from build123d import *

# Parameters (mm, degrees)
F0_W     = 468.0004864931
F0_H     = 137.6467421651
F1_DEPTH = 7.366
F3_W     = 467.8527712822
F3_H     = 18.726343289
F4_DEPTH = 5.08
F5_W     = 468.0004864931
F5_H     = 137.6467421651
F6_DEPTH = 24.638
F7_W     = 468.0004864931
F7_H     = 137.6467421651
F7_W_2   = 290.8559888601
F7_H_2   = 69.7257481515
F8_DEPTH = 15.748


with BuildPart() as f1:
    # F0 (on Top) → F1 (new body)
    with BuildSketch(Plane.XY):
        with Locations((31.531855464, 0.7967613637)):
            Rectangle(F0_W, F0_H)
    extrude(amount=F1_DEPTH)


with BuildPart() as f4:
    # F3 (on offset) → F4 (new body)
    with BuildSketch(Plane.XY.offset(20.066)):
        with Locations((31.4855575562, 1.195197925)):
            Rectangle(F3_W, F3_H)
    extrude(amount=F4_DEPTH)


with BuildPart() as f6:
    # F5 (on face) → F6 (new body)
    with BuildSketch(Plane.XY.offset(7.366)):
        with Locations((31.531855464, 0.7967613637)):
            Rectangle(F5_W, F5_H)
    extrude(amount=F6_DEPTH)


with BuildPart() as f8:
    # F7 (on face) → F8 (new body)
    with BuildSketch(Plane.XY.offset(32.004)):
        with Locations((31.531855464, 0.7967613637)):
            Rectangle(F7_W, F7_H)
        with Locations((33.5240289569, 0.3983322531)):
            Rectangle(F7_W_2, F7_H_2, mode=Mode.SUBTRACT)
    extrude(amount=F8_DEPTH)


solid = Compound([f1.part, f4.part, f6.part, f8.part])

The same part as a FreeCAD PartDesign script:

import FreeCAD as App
import Part
import Sketcher
from FreeCAD import Vector
Q = App.Units.Quantity

doc = App.newDocument("Part")
body = doc.addObject("PartDesign::Body", "Body")

sketch1 = doc.addObject("Sketcher::SketchObject", "Sketch")
body.addObject(sketch1)
sketch1.AttachmentSupport = (doc.XY_Plane, [""])
sketch1.MapMode = "FlatFace"
sketch1.addGeometry([
    Part.LineSegment(Vector(-202, 70, 0), Vector(-202, -68, 0)),
    Part.LineSegment(Vector(-202, -68, 0), Vector(266, -68, 0)),
    Part.LineSegment(Vector(266, -68, 0), Vector(266, 70, 0)),
    Part.LineSegment(Vector(266, 70, 0), Vector(-202, 70, 0)),
], False)
sketch1.addConstraint([
    Sketcher.Constraint("Coincident", 0, 2, 1, 1),
    Sketcher.Constraint("Coincident", 1, 2, 2, 1),
    Sketcher.Constraint("Coincident", 2, 2, 3, 1),
    Sketcher.Constraint("Coincident", 3, 2, 0, 1),
    Sketcher.Constraint("Vertical", 0),
    Sketcher.Constraint("Horizontal", 1),
    Sketcher.Constraint("Vertical", 2),
    Sketcher.Constraint("Horizontal", 3),
    Sketcher.Constraint("DistanceX", -1, 1, 1, 2, Q("265.532099 mm")),
    Sketcher.Constraint("DistanceX", 1, 1, 1, 2, Q("468.000486 mm")),
    Sketcher.Constraint("DistanceY", 0, 2, 0, 1, Q("137.646742 mm")),
    Sketcher.Constraint("DistanceY", 0, 2, -1, 1, Q("68.02661 mm")),
])
pad1 = doc.addObject("PartDesign::Pad", "Pad")
body.addObject(pad1)
pad1.Profile = sketch1
pad1.Length = Q("0.29 in")
body2 = doc.addObject("PartDesign::Body", "Body001")

sketch2 = doc.addObject("Sketcher::SketchObject", "Sketch001")
body2.addObject(sketch2)
sketch2.AttachmentSupport = (doc.getObject("XY_Plane001"), [""])
sketch2.MapMode = "FlatFace"
sketch2.AttachmentOffset = App.Placement(Vector(0, 0, 0.79 * 25.4), App.Rotation())
sketch2.addGeometry([
    Part.LineSegment(Vector(-202, 11, 0), Vector(-202, -8, 0)),
    Part.LineSegment(Vector(-202, -8, 0), Vector(265, -8, 0)),
    Part.LineSegment(Vector(265, -8, 0), Vector(265, 11, 0)),
    Part.LineSegment(Vector(265, 11, 0), Vector(-202, 11, 0)),
], False)
sketch2.addConstraint([
    Sketcher.Constraint("Coincident", 0, 2, 1, 1),
    Sketcher.Constraint("Coincident", 1, 2, 2, 1),
    Sketcher.Constraint("Coincident", 2, 2, 3, 1),
    Sketcher.Constraint("Coincident", 3, 2, 0, 1),
    Sketcher.Constraint("Vertical", 0),
    Sketcher.Constraint("Horizontal", 1),
    Sketcher.Constraint("Vertical", 2),
    Sketcher.Constraint("Horizontal", 3),
    Sketcher.Constraint("DistanceX", 1, 1, 1, 2, Q("467.852771 mm")),
    Sketcher.Constraint("DistanceY", 0, 2, 0, 1, Q("18.726343 mm")),
    Sketcher.Constraint("DistanceX", 0, 2, -1, 1, Q("202.440828 mm")),
    Sketcher.Constraint("DistanceY", -1, 1, 2, 2, Q("10.55837 mm")),
])
pad2 = doc.addObject("PartDesign::Pad", "Pad001")
body2.addObject(pad2)
pad2.Profile = sketch2
pad2.Length = Q("0.2 in")
body3 = doc.addObject("PartDesign::Body", "Body002")

sketch3 = doc.addObject("Sketcher::SketchObject", "Sketch002")
body3.addObject(sketch3)
sketch3.AttachmentSupport = (doc.getObject("XY_Plane002"), [""])
sketch3.MapMode = "FlatFace"
sketch3.AttachmentOffset = App.Placement(Vector(0, 0, 0.29 * 25.4), App.Rotation())
sketch3.addGeometry([
    Part.LineSegment(Vector(-202, 70, 0), Vector(-202, -68, 0)),
    Part.LineSegment(Vector(-202, -68, 0), Vector(266, -68, 0)),
    Part.LineSegment(Vector(266, -68, 0), Vector(266, 70, 0)),
    Part.LineSegment(Vector(266, 70, 0), Vector(-202, 70, 0)),
], False)
sketch3.addConstraint([
    Sketcher.Constraint("Coincident", 0, 2, 1, 1),
    Sketcher.Constraint("Coincident", 1, 2, 2, 1),
    Sketcher.Constraint("Coincident", 2, 2, 3, 1),
    Sketcher.Constraint("Coincident", 3, 2, 0, 1),
    Sketcher.Constraint("Vertical", 0),
    Sketcher.Constraint("Horizontal", 1),
    Sketcher.Constraint("Vertical", 2),
    Sketcher.Constraint("Horizontal", 3),
    Sketcher.Constraint("DistanceX", -1, 1, 1, 2, Q("265.532099 mm")),
    Sketcher.Constraint("DistanceX", 1, 1, 1, 2, Q("468.000486 mm")),
    Sketcher.Constraint("DistanceY", 0, 2, 0, 1, Q("137.646742 mm")),
    Sketcher.Constraint("DistanceY", 0, 2, -1, 1, Q("68.02661 mm")),
])
pad3 = doc.addObject("PartDesign::Pad", "Pad002")
body3.addObject(pad3)
pad3.Profile = sketch3
pad3.Length = Q("0.97 in")
body4 = doc.addObject("PartDesign::Body", "Body003")

sketch4 = doc.addObject("Sketcher::SketchObject", "Sketch003")
body4.addObject(sketch4)
sketch4.AttachmentSupport = (doc.getObject("XY_Plane003"), [""])
sketch4.MapMode = "FlatFace"
sketch4.AttachmentOffset = App.Placement(Vector(0, 0, 1.26 * 25.4), App.Rotation())
sketch4.addGeometry([
    Part.LineSegment(Vector(-202, 70, 0), Vector(-202, -68, 0)),
    Part.LineSegment(Vector(-202, -68, 0), Vector(266, -68, 0)),
    Part.LineSegment(Vector(266, -68, 0), Vector(266, 70, 0)),
    Part.LineSegment(Vector(266, 70, 0), Vector(-202, 70, 0)),
    Part.LineSegment(Vector(179, -34, 0), Vector(-112, -34, 0)),
    Part.LineSegment(Vector(-112, -34, 0), Vector(-112, 35, 0)),
    Part.LineSegment(Vector(-112, 35, 0), Vector(179, 35, 0)),
    Part.LineSegment(Vector(179, 35, 0), Vector(179, -34, 0)),
], False)
sketch4.addConstraint([
    Sketcher.Constraint("Coincident", 0, 2, 1, 1),
    Sketcher.Constraint("Coincident", 1, 2, 2, 1),
    Sketcher.Constraint("Coincident", 2, 2, 3, 1),
    Sketcher.Constraint("Coincident", 3, 2, 0, 1),
    Sketcher.Constraint("Coincident", 4, 2, 5, 1),
    Sketcher.Constraint("Coincident", 5, 2, 6, 1),
    Sketcher.Constraint("Coincident", 6, 2, 7, 1),
    Sketcher.Constraint("Coincident", 7, 2, 4, 1),
    Sketcher.Constraint("Vertical", 0),
    Sketcher.Constraint("Horizontal", 1),
    Sketcher.Constraint("Vertical", 2),
    Sketcher.Constraint("Horizontal", 3),
    Sketcher.Constraint("Horizontal", 4),
    Sketcher.Constraint("Vertical", 5),
    Sketcher.Constraint("Horizontal", 6),
    Sketcher.Constraint("Vertical", 7),
    Sketcher.Constraint("DistanceX", 4, 2, 4, 1, Q("290.855989 mm")),
    Sketcher.Constraint("DistanceY", 5, 1, 5, 2, Q("69.725748 mm")),
    Sketcher.Constraint("DistanceX", -1, 1, 1, 2, Q("265.532099 mm")),
    Sketcher.Constraint("DistanceX", 1, 1, 1, 2, Q("468.000486 mm")),
    Sketcher.Constraint("DistanceY", 0, 2, 0, 1, Q("137.646742 mm")),
    Sketcher.Constraint("DistanceY", 0, 2, -1, 1, Q("68.02661 mm")),
    Sketcher.Constraint("DistanceY", 4, 2, -1, 1, Q("34.464542 mm")),
    Sketcher.Constraint("DistanceX", 3, 2, 6, 2, Q("381.420411 mm")),
])
pad4 = doc.addObject("PartDesign::Pad", "Pad003")
body4.addObject(pad4)
pad4.Profile = sketch4
pad4.Length = Q("0.62 in")

doc.recompute()
